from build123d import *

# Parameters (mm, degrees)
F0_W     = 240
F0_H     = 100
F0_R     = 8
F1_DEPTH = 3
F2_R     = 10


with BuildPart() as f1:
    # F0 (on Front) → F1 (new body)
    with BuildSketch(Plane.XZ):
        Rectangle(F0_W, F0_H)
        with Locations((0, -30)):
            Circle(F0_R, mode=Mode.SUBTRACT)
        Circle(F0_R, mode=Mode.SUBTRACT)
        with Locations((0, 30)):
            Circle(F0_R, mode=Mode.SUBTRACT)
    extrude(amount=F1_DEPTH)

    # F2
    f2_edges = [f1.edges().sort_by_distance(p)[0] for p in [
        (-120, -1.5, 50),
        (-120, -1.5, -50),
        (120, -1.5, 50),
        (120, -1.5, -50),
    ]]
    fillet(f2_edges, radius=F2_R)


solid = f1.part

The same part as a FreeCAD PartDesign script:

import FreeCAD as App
import Part
import Sketcher
from FreeCAD import Vector
Q = App.Units.Quantity


def edges_at(feature, points):
    """Names of the edges that pass closest to the given points."""
    edges = feature.Shape.Edges
    near = lambda p: min(range(len(edges)), key=lambda i: edges[i].distToShape(Part.Vertex(*p))[0])
    return sorted({f"Edge{near(p) + 1}" for p in points})

doc = App.newDocument("Part")
body = doc.addObject("PartDesign::Body", "Body")

sketch1 = body.newObject("Sketcher::SketchObject", "Sketch")
sketch1.AttachmentSupport = (doc.getObject("XZ_Plane"), [""])
sketch1.MapMode = "FlatFace"
sketch1.addGeometry([
    Part.LineSegment(Vector(-120, 50, 0), Vector(-120, -50, 0)),
    Part.LineSegment(Vector(-120, -50, 0), Vector(120, -50, 0)),
    Part.LineSegment(Vector(120, -50, 0), Vector(120, 50, 0)),
    Part.LineSegment(Vector(120, 50, 0), Vector(-120, 50, 0)),
    Part.Circle(Vector(0, -30, 0), Vector(0, 0, 1), 8),
    Part.Circle(Vector(0, 0, 0), Vector(0, 0, 1), 8),
    Part.Circle(Vector(0, 30, 0), Vector(0, 0, 1), 8),
], False)
sketch1.addConstraint([
    Sketcher.Constraint("Coincident", 0, 2, 1, 1),
    Sketcher.Constraint("Coincident", 1, 2, 2, 1),
    Sketcher.Constraint("Coincident", 2, 2, 3, 1),
    Sketcher.Constraint("Coincident", 3, 2, 0, 1),
    Sketcher.Constraint("Vertical", 0),
    Sketcher.Constraint("Horizontal", 1),
    Sketcher.Constraint("Vertical", 2),
    Sketcher.Constraint("Horizontal", 3),
    Sketcher.Constraint("Coincident", 5, 3, -1, 1),
    Sketcher.Constraint("Equal", 4, 5),
    Sketcher.Constraint("Equal", 5, 6),
    Sketcher.Constraint("Symmetric", 4, 3, 6, 3, -1, 1),
    Sketcher.Constraint("Symmetric", 0, 2, 2, 2, -1, 1),
    Sketcher.Constraint("PointOnObject", 4, 3, -2),
    Sketcher.Constraint("Diameter", 4, Q("16 mm")),
    Sketcher.Constraint("DistanceX", 1, 1, 1, 2, Q("240 mm")),
    Sketcher.Constraint("DistanceY", 0, 2, 0, 1, Q("100 mm")),
    Sketcher.Constraint("DistanceY", 4, 3, -1, 1, Q("30 mm")),
])
pad1 = body.newObject("PartDesign::Pad", "Pad")
pad1.Profile = sketch1
pad1.Length = 3
doc.recompute()

fillet = body.newObject("PartDesign::Fillet", "Fillet")
fillet.Base = (pad1, edges_at(pad1, [
    (-120, -1.5, 50),
    (-120, -1.5, -50),
    (120, -1.5, 50),
    (120, -1.5, -50),
]))
fillet.Radius = 10

doc.recompute()
